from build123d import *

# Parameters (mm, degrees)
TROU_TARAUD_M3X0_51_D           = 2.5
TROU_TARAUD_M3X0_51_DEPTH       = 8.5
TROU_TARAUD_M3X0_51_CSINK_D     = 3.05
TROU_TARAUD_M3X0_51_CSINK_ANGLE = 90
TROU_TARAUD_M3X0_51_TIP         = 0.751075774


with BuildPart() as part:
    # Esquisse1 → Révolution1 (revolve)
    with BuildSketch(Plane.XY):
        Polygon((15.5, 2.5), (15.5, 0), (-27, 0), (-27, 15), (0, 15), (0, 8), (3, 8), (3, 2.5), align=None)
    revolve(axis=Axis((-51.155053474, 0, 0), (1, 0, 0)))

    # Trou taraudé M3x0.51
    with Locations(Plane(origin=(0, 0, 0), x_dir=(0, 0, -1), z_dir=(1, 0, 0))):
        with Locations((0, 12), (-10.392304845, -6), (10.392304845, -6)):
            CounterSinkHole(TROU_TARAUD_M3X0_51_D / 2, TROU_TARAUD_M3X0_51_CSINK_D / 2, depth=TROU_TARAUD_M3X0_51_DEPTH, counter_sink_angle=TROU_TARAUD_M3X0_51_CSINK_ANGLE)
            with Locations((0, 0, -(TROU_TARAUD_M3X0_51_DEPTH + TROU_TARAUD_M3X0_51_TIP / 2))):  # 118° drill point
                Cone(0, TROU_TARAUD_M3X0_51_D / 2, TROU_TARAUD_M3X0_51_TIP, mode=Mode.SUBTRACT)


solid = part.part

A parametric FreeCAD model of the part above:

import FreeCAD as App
import Part
import Sketcher
from FreeCAD import Vector
Q = App.Units.Quantity

doc = App.newDocument("Part")
params = doc.addObject("Spreadsheet::Sheet", "Params")
for row, (alias, value) in enumerate([
    ("sketch1_width", "3 mm"),
    ("sketch1_width2", "27 mm"),
    ("sketch1_height", "7 mm"),
    ("sketch1_height2", "15 mm"),
    ("sketch1_width3", "12.5 mm"),
    ("revolution_angle", "360 deg"),
    ("sketch2_diameter", "2.5 mm"),
    ("hole_diameter", "2.5 mm"),
    ("hole_depth", "8.5 mm"),
    ("hole_csink_diameter", "3.05 mm"),
], start=1):
    params.set(f"A{row}", alias)
    params.set(f"B{row}", "=" + value)
    params.setAlias(f"B{row}", alias)

body = doc.addObject("PartDesign::Body", "Body")

sketch1 = doc.addObject("Sketcher::SketchObject", "Sketch")
body.addObject(sketch1)
sketch1.AttachmentSupport = (doc.XY_Plane, [""])
sketch1.MapMode = "FlatFace"
sketch1.addGeometry([
    Part.LineSegment(Vector(15.5, 0, 0), Vector(15.5, 2.5, 0)),
    Part.LineSegment(Vector(15.5, 2.5, 0), Vector(3, 2.5, 0)),
    Part.LineSegment(Vector(3, 2.5, 0), Vector(3, 8, 0)),
    Part.LineSegment(Vector(3, 8, 0), Vector(0, 8, 0)),
    Part.LineSegment(Vector(0, 8, 0), Vector(0, 15, 0)),
    Part.LineSegment(Vector(0, 15, 0), Vector(-27, 15, 0)),
    Part.LineSegment(Vector(-27, 15, 0), Vector(-27, 0, 0)),
    Part.LineSegment(Vector(-27, 0, 0), Vector(15.5, 0, 0)),
], False)
sketch1.addConstraint([
    Sketcher.Constraint("Coincident", 0, 2, 1, 1),
    Sketcher.Constraint("Coincident", 1, 2, 2, 1),
    Sketcher.Constraint("Coincident", 2, 2, 3, 1),
    Sketcher.Constraint("Coincident", 3, 2, 4, 1),
    Sketcher.Constraint("Coincident", 4, 2, 5, 1),
    Sketcher.Constraint("Coincident", 5, 2, 6, 1),
    Sketcher.Constraint("Coincident", 6, 2, 7, 1),
    Sketcher.Constraint("Coincident", 7, 2, 0, 1),
    Sketcher.Constraint("Vertical", 0),
    Sketcher.Constraint("Horizontal", 1),
    Sketcher.Constraint("Vertical", 2),
    Sketcher.Constraint("Horizontal", 3),
    Sketcher.Constraint("Vertical", 4),
    Sketcher.Constraint("Horizontal", 5),
    Sketcher.Constraint("Vertical", 6),
    Sketcher.Constraint("Horizontal", 7),
    Sketcher.Constraint("PointOnObject", 3, 2, -2),
    Sketcher.Constraint("PointOnObject", 6, 2, -1),
    Sketcher.Constraint("DistanceX", 3, 2, 3, 1, Q("3 mm")),
    Sketcher.Constraint("DistanceX", 5, 2, 5, 1, Q("27 mm")),
    Sketcher.Constraint("DistanceY", 4, 1, 4, 2, Q("7 mm")),
    Sketcher.Constraint("DistanceY", 6, 2, 6, 1, Q("15 mm")),
    Sketcher.Constraint("DistanceX", 1, 2, 1, 1, Q("12.5 mm")),
    Sketcher.Constraint("DistanceY", 0, 1, 0, 2, Q("2.5 mm")),
])
sketch1.setExpression("Constraints[18]", "Params.sketch1_width")
sketch1.setExpression("Constraints[19]", "Params.sketch1_width2")
sketch1.setExpression("Constraints[20]", "Params.sketch1_height")
sketch1.setExpression("Constraints[21]", "Params.sketch1_height2")
sketch1.setExpression("Constraints[22]", "Params.sketch1_width3")
revolution = doc.addObject("PartDesign::Revolution", "Revolution")
body.addObject(revolution)
revolution.Profile = sketch1
revolution.ReferenceAxis = (sketch1, ["H_Axis"])
revolution.setExpression("Angle", "Params.revolution_angle")

sketch2 = doc.addObject("Sketcher::SketchObject", "Sketch001")
body.addObject(sketch2)
sketch2.AttachmentSupport = (doc.YZ_Plane, [""])
sketch2.MapMode = "FlatFace"
sketch2.addGeometry([
    Part.Circle(Vector(12, 0, 0), Vector(0, 0, 1), 1.2),
    Part.Circle(Vector(-6, 10.4, 0), Vector(0, 0, 1), 1.2),
    Part.Circle(Vector(-6, -10.4, 0), Vector(0, 0, 1), 1.2),
], False)
sketch2.addConstraint([
    Sketcher.Constraint("Equal", 0, 1),
    Sketcher.Constraint("Equal", 1, 2),
    Sketcher.Constraint("Symmetric", 1, 3, 2, 3, -1),
    Sketcher.Constraint("PointOnObject", 0, 3, -1),
    Sketcher.Constraint("Diameter", 0, Q("2.5 mm")),
    Sketcher.Constraint("DistanceX", -1, 1, 0, 3, Q("12 mm")),
    Sketcher.Constraint("DistanceX", 1, 3, -1, 1, Q("6 mm")),
    Sketcher.Constraint("DistanceY", 2, 3, 1, 3, Q("20.78461 mm")),
])
sketch2.setExpression("Constraints[4]", "Params.sketch2_diameter")
doc.recompute()
hole = doc.addObject("PartDesign::Hole", "Hole")
body.addObject(hole)
hole.Profile = sketch2
hole.ThreadType = "None"
hole.setExpression("Diameter", "Params.hole_diameter")
hole.DepthType = "Dimension"
hole.setExpression("Depth", "Params.hole_depth")
hole.DrillPoint = "Angled"
hole.DrillPointAngle = 118
hole.HoleCutType = "Countersink"
hole.setExpression("HoleCutDiameter", "Params.hole_csink_diameter")
hole.HoleCutCountersinkAngle = 90

doc.recompute()
